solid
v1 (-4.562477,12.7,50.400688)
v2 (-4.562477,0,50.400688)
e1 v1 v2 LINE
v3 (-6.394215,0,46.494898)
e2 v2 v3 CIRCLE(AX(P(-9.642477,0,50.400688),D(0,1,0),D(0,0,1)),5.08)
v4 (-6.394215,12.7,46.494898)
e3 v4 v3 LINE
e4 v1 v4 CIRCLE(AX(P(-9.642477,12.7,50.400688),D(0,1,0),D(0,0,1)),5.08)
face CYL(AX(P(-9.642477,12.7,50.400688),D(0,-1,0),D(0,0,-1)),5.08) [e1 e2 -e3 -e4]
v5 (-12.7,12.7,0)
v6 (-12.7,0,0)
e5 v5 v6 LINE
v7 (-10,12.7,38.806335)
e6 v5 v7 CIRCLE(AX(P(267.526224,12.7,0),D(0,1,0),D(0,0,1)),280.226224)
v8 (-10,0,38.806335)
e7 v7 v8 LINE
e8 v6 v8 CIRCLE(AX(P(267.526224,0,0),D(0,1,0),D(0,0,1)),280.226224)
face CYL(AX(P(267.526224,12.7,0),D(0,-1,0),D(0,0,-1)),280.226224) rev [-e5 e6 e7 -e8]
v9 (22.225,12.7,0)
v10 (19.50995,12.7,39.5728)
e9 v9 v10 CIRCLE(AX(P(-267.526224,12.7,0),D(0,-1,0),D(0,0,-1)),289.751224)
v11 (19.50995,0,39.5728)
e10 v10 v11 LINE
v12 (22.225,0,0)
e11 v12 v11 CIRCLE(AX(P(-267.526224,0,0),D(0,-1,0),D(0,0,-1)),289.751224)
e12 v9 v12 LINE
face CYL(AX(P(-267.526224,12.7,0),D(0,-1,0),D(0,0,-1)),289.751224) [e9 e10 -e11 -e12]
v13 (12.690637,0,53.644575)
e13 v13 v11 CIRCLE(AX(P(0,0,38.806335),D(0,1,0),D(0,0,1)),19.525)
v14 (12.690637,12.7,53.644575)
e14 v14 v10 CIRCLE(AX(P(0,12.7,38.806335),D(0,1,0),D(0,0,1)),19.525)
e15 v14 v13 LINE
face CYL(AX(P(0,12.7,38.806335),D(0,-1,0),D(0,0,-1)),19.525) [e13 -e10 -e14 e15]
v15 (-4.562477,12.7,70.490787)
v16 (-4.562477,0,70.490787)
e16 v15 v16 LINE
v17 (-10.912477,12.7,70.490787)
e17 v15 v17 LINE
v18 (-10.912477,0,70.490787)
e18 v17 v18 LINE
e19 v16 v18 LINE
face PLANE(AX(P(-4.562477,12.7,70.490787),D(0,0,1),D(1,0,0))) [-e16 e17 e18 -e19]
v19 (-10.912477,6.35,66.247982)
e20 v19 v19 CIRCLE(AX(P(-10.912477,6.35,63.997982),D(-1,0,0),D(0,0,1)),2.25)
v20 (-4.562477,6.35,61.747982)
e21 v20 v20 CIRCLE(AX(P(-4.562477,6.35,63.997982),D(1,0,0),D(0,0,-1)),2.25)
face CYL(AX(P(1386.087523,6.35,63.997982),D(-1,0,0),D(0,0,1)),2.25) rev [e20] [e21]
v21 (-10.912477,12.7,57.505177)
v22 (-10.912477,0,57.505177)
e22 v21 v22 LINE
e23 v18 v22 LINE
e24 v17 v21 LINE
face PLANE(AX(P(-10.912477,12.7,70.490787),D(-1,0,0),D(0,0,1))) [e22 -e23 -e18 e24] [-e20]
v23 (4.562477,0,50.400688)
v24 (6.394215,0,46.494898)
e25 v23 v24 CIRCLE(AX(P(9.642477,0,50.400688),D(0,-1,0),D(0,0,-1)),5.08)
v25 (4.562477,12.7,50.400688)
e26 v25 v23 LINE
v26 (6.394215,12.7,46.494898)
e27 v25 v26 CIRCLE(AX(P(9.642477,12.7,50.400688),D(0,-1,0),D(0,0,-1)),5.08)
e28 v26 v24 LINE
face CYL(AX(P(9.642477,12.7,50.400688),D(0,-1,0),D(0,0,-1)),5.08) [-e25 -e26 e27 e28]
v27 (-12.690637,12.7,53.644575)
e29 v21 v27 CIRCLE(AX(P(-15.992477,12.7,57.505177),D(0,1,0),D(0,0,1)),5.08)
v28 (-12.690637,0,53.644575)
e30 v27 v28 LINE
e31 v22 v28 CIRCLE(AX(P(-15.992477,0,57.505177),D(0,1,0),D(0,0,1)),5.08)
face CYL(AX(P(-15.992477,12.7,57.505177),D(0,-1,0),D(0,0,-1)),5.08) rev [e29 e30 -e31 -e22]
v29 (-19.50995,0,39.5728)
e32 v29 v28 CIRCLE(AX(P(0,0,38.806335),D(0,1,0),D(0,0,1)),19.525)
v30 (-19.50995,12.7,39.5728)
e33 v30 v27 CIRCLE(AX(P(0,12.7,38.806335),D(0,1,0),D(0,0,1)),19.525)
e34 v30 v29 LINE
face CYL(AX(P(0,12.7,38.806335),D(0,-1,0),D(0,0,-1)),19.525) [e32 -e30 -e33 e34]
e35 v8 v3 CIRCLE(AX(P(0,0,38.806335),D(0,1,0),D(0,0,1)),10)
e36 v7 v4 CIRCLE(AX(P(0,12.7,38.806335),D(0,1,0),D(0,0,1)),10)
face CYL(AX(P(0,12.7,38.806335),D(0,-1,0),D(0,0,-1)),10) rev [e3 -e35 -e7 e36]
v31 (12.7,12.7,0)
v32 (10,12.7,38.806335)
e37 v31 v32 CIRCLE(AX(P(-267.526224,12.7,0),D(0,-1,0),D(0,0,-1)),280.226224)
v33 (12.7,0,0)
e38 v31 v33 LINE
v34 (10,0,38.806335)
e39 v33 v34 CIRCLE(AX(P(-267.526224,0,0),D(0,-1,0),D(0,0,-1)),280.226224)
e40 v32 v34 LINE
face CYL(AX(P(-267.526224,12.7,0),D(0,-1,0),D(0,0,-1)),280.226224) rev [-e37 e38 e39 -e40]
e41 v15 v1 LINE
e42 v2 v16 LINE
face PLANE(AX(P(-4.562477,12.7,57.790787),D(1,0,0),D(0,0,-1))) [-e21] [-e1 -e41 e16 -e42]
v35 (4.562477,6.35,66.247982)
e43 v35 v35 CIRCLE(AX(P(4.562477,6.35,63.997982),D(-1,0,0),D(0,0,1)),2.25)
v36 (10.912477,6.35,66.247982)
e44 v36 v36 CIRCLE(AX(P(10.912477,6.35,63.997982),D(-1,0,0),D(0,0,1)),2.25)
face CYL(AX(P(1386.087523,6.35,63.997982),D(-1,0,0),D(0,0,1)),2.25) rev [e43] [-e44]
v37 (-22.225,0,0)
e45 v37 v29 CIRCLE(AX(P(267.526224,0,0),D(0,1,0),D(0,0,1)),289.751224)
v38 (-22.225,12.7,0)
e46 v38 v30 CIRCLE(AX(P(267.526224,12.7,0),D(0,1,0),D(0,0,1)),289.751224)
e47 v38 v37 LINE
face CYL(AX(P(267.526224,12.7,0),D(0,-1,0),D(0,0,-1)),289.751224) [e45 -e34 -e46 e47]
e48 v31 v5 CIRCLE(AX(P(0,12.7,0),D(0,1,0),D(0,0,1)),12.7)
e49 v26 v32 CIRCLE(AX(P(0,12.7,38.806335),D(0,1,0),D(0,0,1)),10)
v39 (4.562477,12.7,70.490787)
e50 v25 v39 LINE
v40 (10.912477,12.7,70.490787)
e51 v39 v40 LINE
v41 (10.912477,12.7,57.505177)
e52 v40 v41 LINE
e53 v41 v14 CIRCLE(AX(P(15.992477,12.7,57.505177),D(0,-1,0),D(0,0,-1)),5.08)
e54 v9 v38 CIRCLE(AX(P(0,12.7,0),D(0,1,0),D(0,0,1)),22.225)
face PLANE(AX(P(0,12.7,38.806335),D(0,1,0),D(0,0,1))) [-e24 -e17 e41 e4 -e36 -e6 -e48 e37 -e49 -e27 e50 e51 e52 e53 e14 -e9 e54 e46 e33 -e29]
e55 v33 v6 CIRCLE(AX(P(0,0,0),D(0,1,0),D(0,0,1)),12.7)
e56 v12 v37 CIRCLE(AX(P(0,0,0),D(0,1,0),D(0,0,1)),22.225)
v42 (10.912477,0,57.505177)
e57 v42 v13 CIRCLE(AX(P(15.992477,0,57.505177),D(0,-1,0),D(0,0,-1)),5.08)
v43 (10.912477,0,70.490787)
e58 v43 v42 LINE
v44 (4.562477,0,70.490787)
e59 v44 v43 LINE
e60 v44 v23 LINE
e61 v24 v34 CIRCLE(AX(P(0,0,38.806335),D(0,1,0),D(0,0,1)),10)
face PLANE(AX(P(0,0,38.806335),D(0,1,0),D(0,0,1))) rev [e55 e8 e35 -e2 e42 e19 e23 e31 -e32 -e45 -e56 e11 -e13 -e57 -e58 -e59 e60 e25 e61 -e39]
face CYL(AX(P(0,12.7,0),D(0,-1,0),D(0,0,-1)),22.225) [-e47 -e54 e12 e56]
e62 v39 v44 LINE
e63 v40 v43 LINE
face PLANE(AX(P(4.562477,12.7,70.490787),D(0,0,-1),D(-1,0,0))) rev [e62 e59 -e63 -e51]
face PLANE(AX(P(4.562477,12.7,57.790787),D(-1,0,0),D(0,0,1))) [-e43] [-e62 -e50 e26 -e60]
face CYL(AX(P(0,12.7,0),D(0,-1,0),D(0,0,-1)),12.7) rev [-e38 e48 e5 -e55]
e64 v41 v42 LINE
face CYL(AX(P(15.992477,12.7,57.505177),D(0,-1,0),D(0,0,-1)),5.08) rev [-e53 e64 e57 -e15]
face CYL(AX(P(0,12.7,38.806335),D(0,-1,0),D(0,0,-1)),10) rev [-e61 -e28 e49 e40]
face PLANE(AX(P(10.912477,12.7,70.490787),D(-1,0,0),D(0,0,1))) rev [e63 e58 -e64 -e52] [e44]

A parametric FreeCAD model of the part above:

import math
import FreeCAD as App
import Part
import Sketcher
from FreeCAD import Vector
Q = App.Units.Quantity

doc = App.newDocument("Part")
body = doc.addObject("PartDesign::Body", "Body")

sketch1 = body.newObject("Sketcher::SketchObject", "Sketch")
sketch1.AttachmentSupport = (doc.getObject("XZ_Plane"), [""])
sketch1.MapMode = "FlatFace"
sketch1.addGeometry([
    Part.LineSegment(Vector(-10.912477, 70.490787, 0), Vector(-4.562477, 70.490787, 0)),
    Part.LineSegment(Vector(-4.562477, 70.490787, 0), Vector(-4.562477, 50.400688, 0)),
    Part.ArcOfCircle(Part.Circle(Vector(-9.642477, 50.400688, 0), Vector(0, 0, 1), 5.08), math.radians(-50.251301), math.radians(0)),
    Part.ArcOfCircle(Part.Circle(Vector(0, 38.806335, 0), Vector(0, 0, 1), 10), math.radians(129.748699), math.radians(180)),
    Part.ArcOfCircle(Part.Circle(Vector(267.526224, 0, 0), Vector(0, 0, 1), 280.226224), math.radians(172.039975), math.radians(180)),
    Part.ArcOfCircle(Part.Circle(Vector(0, 0, 0), Vector(0, 0, 1), 12.7), math.radians(180), math.radians(360)),
    Part.ArcOfCircle(Part.Circle(Vector(-267.526224, 0, 0), Vector(0, 0, 1), 280.226224), math.radians(0), math.radians(7.960025)),
    Part.ArcOfCircle(Part.Circle(Vector(0, 38.806335, 0), Vector(0, 0, 1), 10), math.radians(0), math.radians(50.251301)),
    Part.ArcOfCircle(Part.Circle(Vector(9.642477, 50.400688, 0), Vector(0, 0, 1), 5.08), math.radians(180), math.radians(230.251301)),
    Part.LineSegment(Vector(4.562477, 50.400688, 0), Vector(4.562477, 70.490787, 0)),
    Part.LineSegment(Vector(4.562477, 70.490787, 0), Vector(10.912477, 70.490787, 0)),
    Part.LineSegment(Vector(10.912477, 70.490787, 0), Vector(10.912477, 57.505177, 0)),
    Part.ArcOfCircle(Part.Circle(Vector(15.992477, 57.505177, 0), Vector(0, 0, 1), 5.08), math.radians(180), math.radians(229.460767)),
    Part.ArcOfCircle(Part.Circle(Vector(0, 38.806335, 0), Vector(0, 0, 1), 19.525), math.radians(2.249759), math.radians(49.460767)),
    Part.ArcOfCircle(Part.Circle(Vector(-267.526224, 0, 0), Vector(0, 0, 1), 289.751224), math.radians(0), math.radians(7.84971)),
    Part.ArcOfCircle(Part.Circle(Vector(0, 0, 0), Vector(0, 0, 1), 22.225), math.radians(180), math.radians(360)),
    Part.ArcOfCircle(Part.Circle(Vector(267.526224, 0, 0), Vector(0, 0, 1), 289.751224), math.radians(172.15029), math.radians(180)),
    Part.ArcOfCircle(Part.Circle(Vector(0, 38.806335, 0), Vector(0, 0, 1), 19.525), math.radians(130.539233), math.radians(177.750241)),
    Part.ArcOfCircle(Part.Circle(Vector(-15.992477, 57.505177, 0), Vector(0, 0, 1), 5.08), math.radians(-49.460767), math.radians(0)),
    Part.LineSegment(Vector(-10.912477, 57.505177, 0), Vector(-10.912477, 70.490787, 0)),
], False)
sketch1.addConstraint([
    Sketcher.Constraint("Coincident", 0, 2, 1, 1),
    Sketcher.Constraint("Tangent", 1, 2, 2, 2),
    Sketcher.Constraint("Tangent", 2, 1, 3, 1),
    Sketcher.Constraint("Coincident", 3, 2, 4, 1),
    Sketcher.Constraint("Tangent", 4, 2, 5, 1),
    Sketcher.Constraint("Tangent", 5, 2, 6, 1),
    Sketcher.Constraint("Coincident", 6, 2, 7, 1),
    Sketcher.Constraint("Tangent", 7, 2, 8, 2),
    Sketcher.Constraint("Tangent", 8, 1, 9, 1),
    Sketcher.Constraint("Coincident", 9, 2, 10, 1),
    Sketcher.Constraint("Coincident", 10, 2, 11, 1),
    Sketcher.Constraint("Tangent", 11, 2, 12, 1),
    Sketcher.Constraint("Tangent", 12, 2, 13, 2),
    Sketcher.Constraint("Coincident", 13, 1, 14, 2),
    Sketcher.Constraint("Tangent", 14, 1, 15, 2),
    Sketcher.Constraint("Tangent", 15, 1, 16, 2),
    Sketcher.Constraint("Coincident", 16, 1, 17, 2),
    Sketcher.Constraint("Tangent", 17, 1, 18, 1),
    Sketcher.Constraint("Tangent", 18, 2, 19, 1),
    Sketcher.Constraint("Coincident", 19, 2, 0, 1),
    Sketcher.Constraint("Horizontal", 0),
    Sketcher.Constraint("Vertical", 1),
    Sketcher.Constraint("Vertical", 9),
    Sketcher.Constraint("Horizontal", 10),
    Sketcher.Constraint("Vertical", 11),
    Sketcher.Constraint("Vertical", 19),
    Sketcher.Constraint("Coincident", 5, 3, -1, 1),
    Sketcher.Constraint("Coincident", 15, 3, -1, 1),
    Sketcher.Constraint("Coincident", 7, 3, 3, 3),
    Sketcher.Constraint("Coincident", 13, 3, 3, 3),
    Sketcher.Constraint("Coincident", 14, 3, 6, 3),
    Sketcher.Constraint("Coincident", 16, 3, 4, 3),
    Sketcher.Constraint("Coincident", 17, 3, 3, 3),
    Sketcher.Constraint("Equal", 4, 6),
    Sketcher.Constraint("Equal", 3, 7),
    Sketcher.Constraint("Equal", 2, 8),
    Sketcher.Constraint("Equal", 8, 12),
    Sketcher.Constraint("Equal", 13, 17),
    Sketcher.Constraint("Equal", 12, 18),
    Sketcher.Constraint("Symmetric", 2, 3, 8, 3, -2),
    Sketcher.Constraint("Symmetric", 10, 2, 19, 2, -2),
    Sketcher.Constraint("PointOnObject", 4, 3, -1),
    Sketcher.Constraint("PointOnObject", 6, 3, -1),
    Sketcher.Constraint("Horizontal", 17, 3, 3, 2),
    Sketcher.Constraint("Radius", 2, Q("0.2 in")),
    Sketcher.Constraint("Radius", 5, Q("0.5 in")),
    Sketcher.Constraint("Radius", 15, Q("0.875 in")),
    Sketcher.Constraint("DistanceX", 0, 1, 0, 2, Q("0.25 in")),
    Sketcher.Constraint("Radius", 3, 10.0),
    Sketcher.Constraint("Radius", 13, 19.525),
    Sketcher.Constraint("DistanceY", 1, 2, 1, 1, 20.090099),
    Sketcher.Constraint("Radius", 4, 280.226224),
    Sketcher.Constraint("DistanceY", 11, 2, 11, 1, 12.98561),
])
pad1 = body.newObject("PartDesign::Pad", "Pad")
pad1.Profile = sketch1
pad1.Length = Q("0.5 in")
pad1.Reversed = True

sketch2 = body.newObject("Sketcher::SketchObject", "Sketch001")
sketch2.AttachmentSupport = (doc.getObject("YZ_Plane"), [""])
sketch2.MapMode = "FlatFace"
sketch2.AttachmentOffset = App.Placement(Vector(0, 0, -10.912477), App.Rotation())
sketch2.addGeometry(Part.Circle(Vector(6.35, 63.997982, 0), Vector(0, 0, 1), 2.25), False)
sketch2.addConstraint([
    Sketcher.Constraint("Diameter", 0, 4.5),
    Sketcher.Constraint("DistanceX", -1, 1, 0, 3, Q("0.25 in")),
    Sketcher.Constraint("DistanceY", -1, 1, 0, 3, 63.997982),
])
pocket1 = body.newObject("PartDesign::Pocket", "Pocket")
pocket1.Profile = sketch2
pocket1.Length = Q("55 in")
pocket1.Reversed = True

doc.recompute()
